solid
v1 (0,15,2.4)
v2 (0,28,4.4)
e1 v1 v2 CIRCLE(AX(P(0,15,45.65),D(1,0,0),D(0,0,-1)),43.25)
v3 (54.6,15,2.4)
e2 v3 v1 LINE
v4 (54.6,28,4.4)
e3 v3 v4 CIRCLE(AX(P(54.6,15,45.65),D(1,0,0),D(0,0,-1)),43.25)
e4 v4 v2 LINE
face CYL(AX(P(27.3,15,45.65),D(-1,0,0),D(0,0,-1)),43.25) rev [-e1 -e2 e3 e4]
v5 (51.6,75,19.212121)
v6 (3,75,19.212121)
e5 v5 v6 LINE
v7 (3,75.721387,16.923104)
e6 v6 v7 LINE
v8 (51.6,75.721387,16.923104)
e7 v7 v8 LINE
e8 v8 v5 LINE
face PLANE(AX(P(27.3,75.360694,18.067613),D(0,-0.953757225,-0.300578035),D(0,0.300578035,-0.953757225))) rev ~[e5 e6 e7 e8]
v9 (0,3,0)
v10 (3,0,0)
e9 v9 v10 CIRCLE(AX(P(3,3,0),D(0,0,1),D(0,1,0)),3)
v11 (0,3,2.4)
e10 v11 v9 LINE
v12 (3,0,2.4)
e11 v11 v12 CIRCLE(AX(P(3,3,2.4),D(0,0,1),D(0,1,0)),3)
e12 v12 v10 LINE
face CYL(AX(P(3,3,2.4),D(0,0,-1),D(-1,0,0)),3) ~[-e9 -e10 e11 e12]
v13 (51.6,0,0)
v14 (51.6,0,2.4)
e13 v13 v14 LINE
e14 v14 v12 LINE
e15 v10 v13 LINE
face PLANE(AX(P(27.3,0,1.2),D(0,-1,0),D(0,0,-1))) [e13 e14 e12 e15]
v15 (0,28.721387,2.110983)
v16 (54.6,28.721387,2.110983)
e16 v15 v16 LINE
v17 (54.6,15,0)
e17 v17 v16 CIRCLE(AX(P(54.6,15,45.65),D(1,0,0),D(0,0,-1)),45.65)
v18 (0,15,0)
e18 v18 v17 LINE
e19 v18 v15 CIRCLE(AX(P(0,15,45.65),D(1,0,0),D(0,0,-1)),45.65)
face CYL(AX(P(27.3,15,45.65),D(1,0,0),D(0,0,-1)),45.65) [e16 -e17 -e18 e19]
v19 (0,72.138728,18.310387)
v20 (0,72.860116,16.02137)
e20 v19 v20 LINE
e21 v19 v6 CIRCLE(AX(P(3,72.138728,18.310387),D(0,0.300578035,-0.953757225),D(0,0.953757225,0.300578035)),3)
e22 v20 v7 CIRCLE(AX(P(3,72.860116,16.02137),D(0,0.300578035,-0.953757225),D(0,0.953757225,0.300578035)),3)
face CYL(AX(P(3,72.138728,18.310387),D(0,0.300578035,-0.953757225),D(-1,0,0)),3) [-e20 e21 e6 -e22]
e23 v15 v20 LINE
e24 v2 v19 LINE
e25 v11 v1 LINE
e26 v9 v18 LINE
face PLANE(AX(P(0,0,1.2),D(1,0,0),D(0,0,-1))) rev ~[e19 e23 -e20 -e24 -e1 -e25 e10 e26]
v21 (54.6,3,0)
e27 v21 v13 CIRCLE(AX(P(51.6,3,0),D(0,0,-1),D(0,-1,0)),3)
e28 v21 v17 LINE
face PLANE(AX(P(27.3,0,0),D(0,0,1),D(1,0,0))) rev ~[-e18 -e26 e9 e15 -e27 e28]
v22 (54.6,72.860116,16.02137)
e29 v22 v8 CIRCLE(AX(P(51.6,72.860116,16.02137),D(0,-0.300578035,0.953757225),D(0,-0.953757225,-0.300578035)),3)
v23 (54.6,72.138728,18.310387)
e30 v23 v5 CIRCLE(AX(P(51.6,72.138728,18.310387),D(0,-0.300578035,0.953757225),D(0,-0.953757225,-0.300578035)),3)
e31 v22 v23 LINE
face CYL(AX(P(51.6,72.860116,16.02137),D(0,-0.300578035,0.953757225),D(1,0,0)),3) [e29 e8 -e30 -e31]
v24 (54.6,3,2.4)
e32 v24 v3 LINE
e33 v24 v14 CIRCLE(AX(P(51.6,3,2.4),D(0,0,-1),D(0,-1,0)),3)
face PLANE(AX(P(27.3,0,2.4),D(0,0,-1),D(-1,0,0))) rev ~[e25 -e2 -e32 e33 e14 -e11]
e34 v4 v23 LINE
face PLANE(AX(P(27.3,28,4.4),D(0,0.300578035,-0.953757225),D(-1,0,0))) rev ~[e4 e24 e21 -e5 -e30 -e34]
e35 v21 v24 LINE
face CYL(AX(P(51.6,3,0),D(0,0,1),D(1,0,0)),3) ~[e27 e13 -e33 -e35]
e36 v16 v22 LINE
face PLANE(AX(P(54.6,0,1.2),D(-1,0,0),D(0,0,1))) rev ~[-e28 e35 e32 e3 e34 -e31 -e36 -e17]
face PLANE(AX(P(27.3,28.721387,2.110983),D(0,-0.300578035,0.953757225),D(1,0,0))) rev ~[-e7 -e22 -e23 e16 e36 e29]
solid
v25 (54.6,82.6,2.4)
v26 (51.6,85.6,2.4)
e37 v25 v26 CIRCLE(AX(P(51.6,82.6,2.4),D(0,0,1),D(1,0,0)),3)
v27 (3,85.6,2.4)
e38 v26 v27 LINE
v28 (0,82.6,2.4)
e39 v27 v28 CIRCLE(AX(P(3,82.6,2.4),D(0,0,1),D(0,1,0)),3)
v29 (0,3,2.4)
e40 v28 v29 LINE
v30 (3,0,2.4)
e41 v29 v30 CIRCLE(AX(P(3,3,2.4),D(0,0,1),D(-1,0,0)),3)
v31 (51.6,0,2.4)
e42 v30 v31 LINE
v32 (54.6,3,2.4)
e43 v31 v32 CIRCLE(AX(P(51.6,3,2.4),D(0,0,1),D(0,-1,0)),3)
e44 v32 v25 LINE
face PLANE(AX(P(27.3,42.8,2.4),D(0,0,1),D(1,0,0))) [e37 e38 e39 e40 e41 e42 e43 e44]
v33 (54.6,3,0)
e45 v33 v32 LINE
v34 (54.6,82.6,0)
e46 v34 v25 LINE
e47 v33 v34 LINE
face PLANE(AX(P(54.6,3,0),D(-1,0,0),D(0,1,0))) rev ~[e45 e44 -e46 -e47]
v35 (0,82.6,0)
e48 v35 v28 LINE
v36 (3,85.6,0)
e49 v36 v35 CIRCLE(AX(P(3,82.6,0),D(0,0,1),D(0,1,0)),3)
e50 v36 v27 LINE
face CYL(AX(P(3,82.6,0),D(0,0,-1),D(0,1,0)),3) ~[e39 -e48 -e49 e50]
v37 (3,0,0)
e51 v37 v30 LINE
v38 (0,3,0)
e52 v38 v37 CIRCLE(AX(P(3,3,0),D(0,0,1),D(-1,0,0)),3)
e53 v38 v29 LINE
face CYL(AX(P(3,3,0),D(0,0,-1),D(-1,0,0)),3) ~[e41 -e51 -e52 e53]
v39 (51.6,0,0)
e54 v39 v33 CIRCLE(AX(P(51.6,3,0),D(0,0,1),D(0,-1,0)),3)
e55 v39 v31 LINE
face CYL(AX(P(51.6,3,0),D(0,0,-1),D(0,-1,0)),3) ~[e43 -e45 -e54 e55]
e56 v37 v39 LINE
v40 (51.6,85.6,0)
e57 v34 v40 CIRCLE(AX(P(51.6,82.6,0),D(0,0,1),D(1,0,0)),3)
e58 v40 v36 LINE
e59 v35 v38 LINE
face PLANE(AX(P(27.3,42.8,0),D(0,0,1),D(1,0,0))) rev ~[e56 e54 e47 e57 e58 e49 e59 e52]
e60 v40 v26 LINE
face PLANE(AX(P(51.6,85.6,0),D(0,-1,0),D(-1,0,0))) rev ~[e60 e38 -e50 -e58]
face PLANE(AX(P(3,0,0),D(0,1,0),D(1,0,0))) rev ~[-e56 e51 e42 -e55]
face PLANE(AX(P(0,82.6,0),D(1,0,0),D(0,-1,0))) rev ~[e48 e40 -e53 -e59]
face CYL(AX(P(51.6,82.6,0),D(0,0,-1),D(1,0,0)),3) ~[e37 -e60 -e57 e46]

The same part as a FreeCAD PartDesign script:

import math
import FreeCAD as App
import Part
import Sketcher

V = App.Vector


def edges_at(feature, points):
    """Names of the edges that pass closest to the given points."""
    edges = feature.Shape.Edges
    near = lambda p: min(range(len(edges)), key=lambda i: edges[i].distToShape(Part.Vertex(*p))[0])
    return sorted({f"Edge{near(p) + 1}" for p in points})


def add_polygon(sketch, points):
    """Adds a closed chain of lines whose ends are joined by coincident constraints."""
    first, n = sketch.GeometryCount, len(points)
    for a, b in zip(points, points[1:] + points[:1]):
        sketch.addGeometry(Part.LineSegment(App.Vector(*a, 0), App.Vector(*b, 0)), False)
    for i in range(n):
        sketch.addConstraint(Sketcher.Constraint("Coincident", first + i, 2, first + (i + 1) % n, 1))

doc = App.newDocument("Part")
body = doc.addObject("PartDesign::Body", "Body")

# Sketch on XY plane
sketch1 = doc.addObject("Sketcher::SketchObject", "Sketch")
body.addObject(sketch1)
sketch1.AttachmentSupport = (doc.XY_Plane, [""])
sketch1.MapMode = "FlatFace"
sketch1.addGeometry([
    Part.LineSegment(V(51.6, 85.6, 0), V(3, 85.6, 0)),  # 0
    Part.ArcOfCircle(Part.Circle(V(3, 82.6, 0), V(0, 0, 1), 3), math.radians(90), math.radians(180)),  # 1
    Part.LineSegment(V(0, 82.6, 0), V(0, 3, 0)),  # 2
    Part.ArcOfCircle(Part.Circle(V(3, 3, 0), V(0, 0, 1), 3), math.radians(180), math.radians(270)),  # 3
    Part.LineSegment(V(3, 0, 0), V(51.6, 0, 0)),  # 4
    Part.ArcOfCircle(Part.Circle(V(51.6, 3, 0), V(0, 0, 1), 3), math.radians(-90), math.radians(0)),  # 5
    Part.LineSegment(V(54.6, 3, 0), V(54.6, 82.6, 0)),  # 6
    Part.ArcOfCircle(Part.Circle(V(51.6, 82.6, 0), V(0, 0, 1), 3), math.radians(0), math.radians(90)),  # 7
], False)
sketch1.addConstraint([
    Sketcher.Constraint("Tangent", 0, 2, 1, 1),
    Sketcher.Constraint("Tangent", 1, 2, 2, 1),
    Sketcher.Constraint("Tangent", 2, 2, 3, 1),
    Sketcher.Constraint("Tangent", 3, 2, 4, 1),
    Sketcher.Constraint("Tangent", 4, 2, 5, 1),
    Sketcher.Constraint("Tangent", 5, 2, 6, 1),
    Sketcher.Constraint("Tangent", 6, 2, 7, 1),
    Sketcher.Constraint("Tangent", 7, 2, 0, 1),
    Sketcher.Constraint("Horizontal", 0),
    Sketcher.Constraint("Vertical", 2),
    Sketcher.Constraint("Horizontal", 4),
    Sketcher.Constraint("Vertical", 6),
    Sketcher.Constraint("Equal", 1, 3),
    Sketcher.Constraint("Equal", 3, 5),
    Sketcher.Constraint("Equal", 5, 7),
    Sketcher.Constraint("PointOnObject", 1, 2, -2),
    Sketcher.Constraint("PointOnObject", 3, 2, -1),
    Sketcher.Constraint("Radius", 1, 3.0),
    Sketcher.Constraint("DistanceX", 0, 2, 0, 1, 48.6),
    Sketcher.Constraint("DistanceY", 2, 2, 2, 1, 79.6),
])
pad1 = doc.addObject("PartDesign::Pad", "Pad")
body.addObject(pad1)
pad1.Profile = sketch1
pad1.Length = 2.4
body2 = doc.addObject("PartDesign::Body", "Body001")

# Sketch on XZ plane
sketch2 = doc.addObject("Sketcher::SketchObject", "Sketch001")
body2.addObject(sketch2)
sketch2.AttachmentSupport = (doc.getObject("XZ_Plane001"), [""])
sketch2.MapMode = "FlatFace"
add_polygon(sketch2, [(0, 2.4), (0, 0), (54.6, 0), (54.6, 2.4)])  # lines 0-3
sketch2.addConstraint([
    Sketcher.Constraint("Vertical", 0),
    Sketcher.Constraint("Horizontal", 1),
    Sketcher.Constraint("Vertical", 2),
    Sketcher.Constraint("Horizontal", 3),
    Sketcher.Constraint("Coincident", 0, 2, -1, 1),
    Sketcher.Constraint("DistanceX", 1, 1, 1, 2, 54.6),
    Sketcher.Constraint("DistanceY", 0, 2, 0, 1, 2.4),
])

# Sketch on YZ plane
sketch3 = doc.addObject("Sketcher::SketchObject", "Sketch002")
body2.addObject(sketch3)
sketch3.AttachmentSupport = (doc.getObject("YZ_Plane001"), [""])
sketch3.MapMode = "FlatFace"
sketch3.AttachmentOffset = App.Placement(V(0, 0, 54.6), App.Rotation())
sketch3.addGeometry([
    Part.LineSegment(V(0, 2, 0), V(15, 2, 0)),
    Part.ArcOfCircle(Part.Circle(V(15, 46, 0), V(0, 0, 1), 43), math.radians(-90), math.radians(-72.51)),
    Part.LineSegment(V(28, 4, 0), V(75, 19, 0)),
], False)
sketch3.addConstraint([
    Sketcher.Constraint("Tangent", 0, 2, 1, 1),
    Sketcher.Constraint("Tangent", 1, 2, 2, 1),
    Sketcher.Constraint("Horizontal", 0),
    Sketcher.Constraint("PointOnObject", 0, 1, -2),
    Sketcher.Constraint("DistanceX", 0, 1, 0, 2, 15.0),
    Sketcher.Constraint("Radius", 1, 43.25),
    Sketcher.Constraint("DistanceX", -1, 1, 1, 2, 28.0),
    Sketcher.Constraint("DistanceX", -1, 1, 2, 2, 75.0),
    Sketcher.Constraint("DistanceY", -1, 1, 0, 1, 2.4),
])
doc.recompute()

additivepipe = doc.addObject("PartDesign::AdditivePipe", "AdditivePipe")
body2.addObject(additivepipe)
additivepipe.Profile = sketch2
additivepipe.Spine = (sketch3, ["Edge1", "Edge2", "Edge3"])
doc.recompute()

fillet = doc.addObject("PartDesign::Fillet", "Fillet")
body2.addObject(fillet)
fillet.Base = (additivepipe, edges_at(additivepipe, [
    (54.6, 0, 1.2),
    (0, 0, 1.2),
    (54.6, 75.361, 18.068),
    (0, 75.361, 18.068),
]))
fillet.Radius = 3

doc.recompute()
